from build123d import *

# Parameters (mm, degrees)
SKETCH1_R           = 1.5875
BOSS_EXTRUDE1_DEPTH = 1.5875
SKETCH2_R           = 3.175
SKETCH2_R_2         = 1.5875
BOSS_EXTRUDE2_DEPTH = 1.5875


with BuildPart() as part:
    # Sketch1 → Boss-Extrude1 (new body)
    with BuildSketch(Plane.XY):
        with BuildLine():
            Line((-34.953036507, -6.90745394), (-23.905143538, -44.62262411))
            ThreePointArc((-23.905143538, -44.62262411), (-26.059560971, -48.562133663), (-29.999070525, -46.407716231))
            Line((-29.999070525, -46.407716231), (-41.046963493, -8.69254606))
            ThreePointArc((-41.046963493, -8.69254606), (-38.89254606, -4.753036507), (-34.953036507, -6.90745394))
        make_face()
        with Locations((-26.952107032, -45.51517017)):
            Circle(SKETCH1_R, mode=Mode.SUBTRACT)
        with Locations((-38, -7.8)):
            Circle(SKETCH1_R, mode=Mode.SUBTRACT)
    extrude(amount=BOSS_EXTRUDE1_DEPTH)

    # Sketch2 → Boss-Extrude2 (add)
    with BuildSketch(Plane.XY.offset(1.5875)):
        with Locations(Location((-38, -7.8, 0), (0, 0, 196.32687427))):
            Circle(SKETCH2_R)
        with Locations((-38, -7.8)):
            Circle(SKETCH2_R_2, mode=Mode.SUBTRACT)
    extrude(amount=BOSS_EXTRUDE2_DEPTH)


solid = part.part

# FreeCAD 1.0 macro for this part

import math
import FreeCAD as App
import Part
import Sketcher
from FreeCAD import Vector
Q = App.Units.Quantity

doc = App.newDocument("Part")
params = doc.addObject("Spreadsheet::Sheet", "Params")
for row, (alias, value) in enumerate([
    ("sketch1_diameter", "0.125 in"),
    ("sketch1_radius", "0.125 in"),
    ("pad1_length", "0.0625 in"),
    ("sketch2_diameter", "0.25 in"),
    ("sketch2_diameter2", "0.125 in"),
    ("pad2_length", "0.0625 in"),
], start=1):
    params.set(f"A{row}", alias)
    params.set(f"B{row}", "=" + value)
    params.setAlias(f"B{row}", alias)

body = doc.addObject("PartDesign::Body", "Body")

# Sketch on XY plane
sketch1 = doc.addObject("Sketcher::SketchObject", "Sketch")
body.addObject(sketch1)
sketch1.AttachmentSupport = (doc.XY_Plane, [""])
sketch1.MapMode = "FlatFace"
sketch1.addGeometry([
    Part.LineSegment(Vector(-23.9, -44.6, 0), Vector(-35, -6.9, 0)),  # 0
    Part.ArcOfCircle(Part.Circle(Vector(-38, -7.8, 0), Vector(0, 0, 1), 3.2), math.radians(16), math.radians(196)),  # 1
    Part.LineSegment(Vector(-41, -8.7, 0), Vector(-30, -46.4, 0)),  # 2
    Part.ArcOfCircle(Part.Circle(Vector(-27, -45.5, 0), Vector(0, 0, 1), 3.2), math.radians(-164), math.radians(16)),  # 3
    Part.Circle(Vector(-27, -45.5, 0), Vector(0, 0, 1), 1.6),  # 4
    Part.Circle(Vector(-38, -7.8, 0), Vector(0, 0, 1), 1.6),  # 5
], False)
sketch1.addConstraint([
    Sketcher.Constraint("Tangent", 0, 2, 1, 1),
    Sketcher.Constraint("Tangent", 1, 2, 2, 1),
    Sketcher.Constraint("Tangent", 2, 2, 3, 1),
    Sketcher.Constraint("Tangent", 3, 2, 0, 1),
    Sketcher.Constraint("Coincident", 4, 3, 3, 3),
    Sketcher.Constraint("Coincident", 5, 3, 1, 3),
    Sketcher.Constraint("Equal", 1, 3),
    Sketcher.Constraint("Equal", 4, 5),
    Sketcher.Constraint("Diameter", 4, Q("0.125 in")),
    Sketcher.Constraint("Radius", 1, Q("0.125 in")),
    Sketcher.Constraint("Distance", 0, 39.3),
    Sketcher.Constraint("DistanceX", 1, 3, -1, 1, 38.0),
    Sketcher.Constraint("DistanceY", 1, 3, -1, 1, 7.8),
    Sketcher.Constraint("DistanceY", 3, 3, -1, 1, 45.51517),
])
sketch1.setExpression("Constraints[8]", "Params.sketch1_diameter")
sketch1.setExpression("Constraints[9]", "Params.sketch1_radius")
pad1 = doc.addObject("PartDesign::Pad", "Pad")
body.addObject(pad1)
pad1.Profile = sketch1
pad1.setExpression("Length", "Params.pad1_length")

# Sketch on XY plane
sketch2 = doc.addObject("Sketcher::SketchObject", "Sketch001")
body.addObject(sketch2)
sketch2.AttachmentSupport = (doc.XY_Plane, [""])
sketch2.MapMode = "FlatFace"
sketch2.AttachmentOffset = App.Placement(Vector(0, 0, 0.0625 * 25.4), App.Rotation())
sketch2.addGeometry([
    Part.Circle(Vector(-38, -7.8, 0), Vector(0, 0, 1), 3.2),
    Part.Circle(Vector(-38, -7.8, 0), Vector(0, 0, 1), 1.6),
], False)
sketch2.addConstraint([
    Sketcher.Constraint("Coincident", 1, 3, 0, 3),
    Sketcher.Constraint("Diameter", 0, Q("0.25 in")),
    Sketcher.Constraint("Diameter", 1, Q("0.125 in")),
    Sketcher.Constraint("DistanceX", 0, 3, -1, 1, 38.0),
    Sketcher.Constraint("DistanceY", 0, 3, -1, 1, 7.8),
])
sketch2.setExpression("Constraints[1]", "Params.sketch2_diameter")
sketch2.setExpression("Constraints[2]", "Params.sketch2_diameter2")
pad2 = doc.addObject("PartDesign::Pad", "Pad001")
body.addObject(pad2)
pad2.Profile = sketch2
pad2.setExpression("Length", "Params.pad2_length")

doc.recompute()
